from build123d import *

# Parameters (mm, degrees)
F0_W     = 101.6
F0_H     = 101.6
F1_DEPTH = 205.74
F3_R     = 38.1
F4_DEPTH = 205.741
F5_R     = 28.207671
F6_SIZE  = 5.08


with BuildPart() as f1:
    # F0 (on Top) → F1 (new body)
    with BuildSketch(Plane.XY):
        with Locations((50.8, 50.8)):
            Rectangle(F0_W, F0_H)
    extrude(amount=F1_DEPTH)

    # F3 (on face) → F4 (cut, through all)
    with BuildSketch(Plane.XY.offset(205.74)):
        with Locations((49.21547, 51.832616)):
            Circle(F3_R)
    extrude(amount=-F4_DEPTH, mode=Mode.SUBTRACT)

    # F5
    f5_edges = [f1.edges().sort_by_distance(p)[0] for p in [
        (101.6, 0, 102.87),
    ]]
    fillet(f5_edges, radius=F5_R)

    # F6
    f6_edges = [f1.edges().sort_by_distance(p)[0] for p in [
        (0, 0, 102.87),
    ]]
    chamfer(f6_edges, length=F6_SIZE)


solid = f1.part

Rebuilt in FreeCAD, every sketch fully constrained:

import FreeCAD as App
import Part
import Sketcher
Q = App.Units.Quantity


def edges_at(feature, points):
    """Names of the edges that pass closest to the given points."""
    edges = feature.Shape.Edges
    near = lambda p: min(range(len(edges)), key=lambda i: edges[i].distToShape(Part.Vertex(*p))[0])
    return sorted({f"Edge{near(p) + 1}" for p in points})

doc = App.newDocument("Part")
body = doc.addObject("PartDesign::Body", "Body")

sketch1 = doc.addObject("Sketcher::SketchObject", "Sketch")
body.addObject(sketch1)
sketch1.AttachmentSupport = (doc.XY_Plane, [""])
sketch1.MapMode = "FlatFace"
sketch1.addGeometry(Part.LineSegment(App.Vector(0, 102, 0), App.Vector(0, 0, 0)), False)
sketch1.addGeometry(Part.LineSegment(App.Vector(0, 0, 0), App.Vector(102, 0, 0)), False)
sketch1.addGeometry(Part.LineSegment(App.Vector(102, 0, 0), App.Vector(102, 102, 0)), False)
sketch1.addGeometry(Part.LineSegment(App.Vector(102, 102, 0), App.Vector(0, 102, 0)), False)
sketch1.addConstraint(Sketcher.Constraint("Coincident", 0, 2, 1, 1))
sketch1.addConstraint(Sketcher.Constraint("Coincident", 1, 2, 2, 1))
sketch1.addConstraint(Sketcher.Constraint("Coincident", 2, 2, 3, 1))
sketch1.addConstraint(Sketcher.Constraint("Coincident", 3, 2, 0, 1))
sketch1.addConstraint(Sketcher.Constraint("Vertical", 0))
sketch1.addConstraint(Sketcher.Constraint("Horizontal", 1))
sketch1.addConstraint(Sketcher.Constraint("Vertical", 2))
sketch1.addConstraint(Sketcher.Constraint("Horizontal", 3))
sketch1.addConstraint(Sketcher.Constraint("Coincident", 0, 2, -1, 1))
sketch1.addConstraint(Sketcher.Constraint("Equal", 3, 0))
sketch1.addConstraint(Sketcher.Constraint("DistanceX", 1, 1, 1, 2, Q("4 in")))
pad1 = doc.addObject("PartDesign::Pad", "Pad")
body.addObject(pad1)
pad1.Profile = sketch1
pad1.Length = Q("8.1 in")

sketch2 = doc.addObject("Sketcher::SketchObject", "Sketch001")
body.addObject(sketch2)
sketch2.AttachmentSupport = (doc.XY_Plane, [""])
sketch2.MapMode = "FlatFace"
sketch2.AttachmentOffset = App.Placement(App.Vector(0, 0, 8.1 * 25.4), App.Rotation())
sketch2.addGeometry(Part.Circle(App.Vector(49, 52, 0), App.Vector(0, 0, 1), 38), False)
sketch2.addConstraint(Sketcher.Constraint("Diameter", 0, Q("3 in")))
sketch2.addConstraint(Sketcher.Constraint("DistanceX", -1, 1, 0, 3, Q("49.21547 mm")))
sketch2.addConstraint(Sketcher.Constraint("DistanceY", -1, 1, 0, 3, Q("51.832616 mm")))
pocket1 = doc.addObject("PartDesign::Pocket", "Pocket")
body.addObject(pocket1)
pocket1.Profile = sketch2
pocket1.Type = "ThroughAll"
doc.recompute()

fillet = doc.addObject("PartDesign::Fillet", "Fillet")
body.addObject(fillet)
fillet.Base = (pocket1, edges_at(pocket1, [(101.6, 0, 102.87)]))
fillet.Radius = 28.207671
doc.recompute()

chamfer = doc.addObject("PartDesign::Chamfer", "Chamfer")
body.addObject(chamfer)
chamfer.Base = (fillet, edges_at(fillet, [(0, 0, 102.87)]))
chamfer.Size = Q("0.2 in")

doc.recompute()
